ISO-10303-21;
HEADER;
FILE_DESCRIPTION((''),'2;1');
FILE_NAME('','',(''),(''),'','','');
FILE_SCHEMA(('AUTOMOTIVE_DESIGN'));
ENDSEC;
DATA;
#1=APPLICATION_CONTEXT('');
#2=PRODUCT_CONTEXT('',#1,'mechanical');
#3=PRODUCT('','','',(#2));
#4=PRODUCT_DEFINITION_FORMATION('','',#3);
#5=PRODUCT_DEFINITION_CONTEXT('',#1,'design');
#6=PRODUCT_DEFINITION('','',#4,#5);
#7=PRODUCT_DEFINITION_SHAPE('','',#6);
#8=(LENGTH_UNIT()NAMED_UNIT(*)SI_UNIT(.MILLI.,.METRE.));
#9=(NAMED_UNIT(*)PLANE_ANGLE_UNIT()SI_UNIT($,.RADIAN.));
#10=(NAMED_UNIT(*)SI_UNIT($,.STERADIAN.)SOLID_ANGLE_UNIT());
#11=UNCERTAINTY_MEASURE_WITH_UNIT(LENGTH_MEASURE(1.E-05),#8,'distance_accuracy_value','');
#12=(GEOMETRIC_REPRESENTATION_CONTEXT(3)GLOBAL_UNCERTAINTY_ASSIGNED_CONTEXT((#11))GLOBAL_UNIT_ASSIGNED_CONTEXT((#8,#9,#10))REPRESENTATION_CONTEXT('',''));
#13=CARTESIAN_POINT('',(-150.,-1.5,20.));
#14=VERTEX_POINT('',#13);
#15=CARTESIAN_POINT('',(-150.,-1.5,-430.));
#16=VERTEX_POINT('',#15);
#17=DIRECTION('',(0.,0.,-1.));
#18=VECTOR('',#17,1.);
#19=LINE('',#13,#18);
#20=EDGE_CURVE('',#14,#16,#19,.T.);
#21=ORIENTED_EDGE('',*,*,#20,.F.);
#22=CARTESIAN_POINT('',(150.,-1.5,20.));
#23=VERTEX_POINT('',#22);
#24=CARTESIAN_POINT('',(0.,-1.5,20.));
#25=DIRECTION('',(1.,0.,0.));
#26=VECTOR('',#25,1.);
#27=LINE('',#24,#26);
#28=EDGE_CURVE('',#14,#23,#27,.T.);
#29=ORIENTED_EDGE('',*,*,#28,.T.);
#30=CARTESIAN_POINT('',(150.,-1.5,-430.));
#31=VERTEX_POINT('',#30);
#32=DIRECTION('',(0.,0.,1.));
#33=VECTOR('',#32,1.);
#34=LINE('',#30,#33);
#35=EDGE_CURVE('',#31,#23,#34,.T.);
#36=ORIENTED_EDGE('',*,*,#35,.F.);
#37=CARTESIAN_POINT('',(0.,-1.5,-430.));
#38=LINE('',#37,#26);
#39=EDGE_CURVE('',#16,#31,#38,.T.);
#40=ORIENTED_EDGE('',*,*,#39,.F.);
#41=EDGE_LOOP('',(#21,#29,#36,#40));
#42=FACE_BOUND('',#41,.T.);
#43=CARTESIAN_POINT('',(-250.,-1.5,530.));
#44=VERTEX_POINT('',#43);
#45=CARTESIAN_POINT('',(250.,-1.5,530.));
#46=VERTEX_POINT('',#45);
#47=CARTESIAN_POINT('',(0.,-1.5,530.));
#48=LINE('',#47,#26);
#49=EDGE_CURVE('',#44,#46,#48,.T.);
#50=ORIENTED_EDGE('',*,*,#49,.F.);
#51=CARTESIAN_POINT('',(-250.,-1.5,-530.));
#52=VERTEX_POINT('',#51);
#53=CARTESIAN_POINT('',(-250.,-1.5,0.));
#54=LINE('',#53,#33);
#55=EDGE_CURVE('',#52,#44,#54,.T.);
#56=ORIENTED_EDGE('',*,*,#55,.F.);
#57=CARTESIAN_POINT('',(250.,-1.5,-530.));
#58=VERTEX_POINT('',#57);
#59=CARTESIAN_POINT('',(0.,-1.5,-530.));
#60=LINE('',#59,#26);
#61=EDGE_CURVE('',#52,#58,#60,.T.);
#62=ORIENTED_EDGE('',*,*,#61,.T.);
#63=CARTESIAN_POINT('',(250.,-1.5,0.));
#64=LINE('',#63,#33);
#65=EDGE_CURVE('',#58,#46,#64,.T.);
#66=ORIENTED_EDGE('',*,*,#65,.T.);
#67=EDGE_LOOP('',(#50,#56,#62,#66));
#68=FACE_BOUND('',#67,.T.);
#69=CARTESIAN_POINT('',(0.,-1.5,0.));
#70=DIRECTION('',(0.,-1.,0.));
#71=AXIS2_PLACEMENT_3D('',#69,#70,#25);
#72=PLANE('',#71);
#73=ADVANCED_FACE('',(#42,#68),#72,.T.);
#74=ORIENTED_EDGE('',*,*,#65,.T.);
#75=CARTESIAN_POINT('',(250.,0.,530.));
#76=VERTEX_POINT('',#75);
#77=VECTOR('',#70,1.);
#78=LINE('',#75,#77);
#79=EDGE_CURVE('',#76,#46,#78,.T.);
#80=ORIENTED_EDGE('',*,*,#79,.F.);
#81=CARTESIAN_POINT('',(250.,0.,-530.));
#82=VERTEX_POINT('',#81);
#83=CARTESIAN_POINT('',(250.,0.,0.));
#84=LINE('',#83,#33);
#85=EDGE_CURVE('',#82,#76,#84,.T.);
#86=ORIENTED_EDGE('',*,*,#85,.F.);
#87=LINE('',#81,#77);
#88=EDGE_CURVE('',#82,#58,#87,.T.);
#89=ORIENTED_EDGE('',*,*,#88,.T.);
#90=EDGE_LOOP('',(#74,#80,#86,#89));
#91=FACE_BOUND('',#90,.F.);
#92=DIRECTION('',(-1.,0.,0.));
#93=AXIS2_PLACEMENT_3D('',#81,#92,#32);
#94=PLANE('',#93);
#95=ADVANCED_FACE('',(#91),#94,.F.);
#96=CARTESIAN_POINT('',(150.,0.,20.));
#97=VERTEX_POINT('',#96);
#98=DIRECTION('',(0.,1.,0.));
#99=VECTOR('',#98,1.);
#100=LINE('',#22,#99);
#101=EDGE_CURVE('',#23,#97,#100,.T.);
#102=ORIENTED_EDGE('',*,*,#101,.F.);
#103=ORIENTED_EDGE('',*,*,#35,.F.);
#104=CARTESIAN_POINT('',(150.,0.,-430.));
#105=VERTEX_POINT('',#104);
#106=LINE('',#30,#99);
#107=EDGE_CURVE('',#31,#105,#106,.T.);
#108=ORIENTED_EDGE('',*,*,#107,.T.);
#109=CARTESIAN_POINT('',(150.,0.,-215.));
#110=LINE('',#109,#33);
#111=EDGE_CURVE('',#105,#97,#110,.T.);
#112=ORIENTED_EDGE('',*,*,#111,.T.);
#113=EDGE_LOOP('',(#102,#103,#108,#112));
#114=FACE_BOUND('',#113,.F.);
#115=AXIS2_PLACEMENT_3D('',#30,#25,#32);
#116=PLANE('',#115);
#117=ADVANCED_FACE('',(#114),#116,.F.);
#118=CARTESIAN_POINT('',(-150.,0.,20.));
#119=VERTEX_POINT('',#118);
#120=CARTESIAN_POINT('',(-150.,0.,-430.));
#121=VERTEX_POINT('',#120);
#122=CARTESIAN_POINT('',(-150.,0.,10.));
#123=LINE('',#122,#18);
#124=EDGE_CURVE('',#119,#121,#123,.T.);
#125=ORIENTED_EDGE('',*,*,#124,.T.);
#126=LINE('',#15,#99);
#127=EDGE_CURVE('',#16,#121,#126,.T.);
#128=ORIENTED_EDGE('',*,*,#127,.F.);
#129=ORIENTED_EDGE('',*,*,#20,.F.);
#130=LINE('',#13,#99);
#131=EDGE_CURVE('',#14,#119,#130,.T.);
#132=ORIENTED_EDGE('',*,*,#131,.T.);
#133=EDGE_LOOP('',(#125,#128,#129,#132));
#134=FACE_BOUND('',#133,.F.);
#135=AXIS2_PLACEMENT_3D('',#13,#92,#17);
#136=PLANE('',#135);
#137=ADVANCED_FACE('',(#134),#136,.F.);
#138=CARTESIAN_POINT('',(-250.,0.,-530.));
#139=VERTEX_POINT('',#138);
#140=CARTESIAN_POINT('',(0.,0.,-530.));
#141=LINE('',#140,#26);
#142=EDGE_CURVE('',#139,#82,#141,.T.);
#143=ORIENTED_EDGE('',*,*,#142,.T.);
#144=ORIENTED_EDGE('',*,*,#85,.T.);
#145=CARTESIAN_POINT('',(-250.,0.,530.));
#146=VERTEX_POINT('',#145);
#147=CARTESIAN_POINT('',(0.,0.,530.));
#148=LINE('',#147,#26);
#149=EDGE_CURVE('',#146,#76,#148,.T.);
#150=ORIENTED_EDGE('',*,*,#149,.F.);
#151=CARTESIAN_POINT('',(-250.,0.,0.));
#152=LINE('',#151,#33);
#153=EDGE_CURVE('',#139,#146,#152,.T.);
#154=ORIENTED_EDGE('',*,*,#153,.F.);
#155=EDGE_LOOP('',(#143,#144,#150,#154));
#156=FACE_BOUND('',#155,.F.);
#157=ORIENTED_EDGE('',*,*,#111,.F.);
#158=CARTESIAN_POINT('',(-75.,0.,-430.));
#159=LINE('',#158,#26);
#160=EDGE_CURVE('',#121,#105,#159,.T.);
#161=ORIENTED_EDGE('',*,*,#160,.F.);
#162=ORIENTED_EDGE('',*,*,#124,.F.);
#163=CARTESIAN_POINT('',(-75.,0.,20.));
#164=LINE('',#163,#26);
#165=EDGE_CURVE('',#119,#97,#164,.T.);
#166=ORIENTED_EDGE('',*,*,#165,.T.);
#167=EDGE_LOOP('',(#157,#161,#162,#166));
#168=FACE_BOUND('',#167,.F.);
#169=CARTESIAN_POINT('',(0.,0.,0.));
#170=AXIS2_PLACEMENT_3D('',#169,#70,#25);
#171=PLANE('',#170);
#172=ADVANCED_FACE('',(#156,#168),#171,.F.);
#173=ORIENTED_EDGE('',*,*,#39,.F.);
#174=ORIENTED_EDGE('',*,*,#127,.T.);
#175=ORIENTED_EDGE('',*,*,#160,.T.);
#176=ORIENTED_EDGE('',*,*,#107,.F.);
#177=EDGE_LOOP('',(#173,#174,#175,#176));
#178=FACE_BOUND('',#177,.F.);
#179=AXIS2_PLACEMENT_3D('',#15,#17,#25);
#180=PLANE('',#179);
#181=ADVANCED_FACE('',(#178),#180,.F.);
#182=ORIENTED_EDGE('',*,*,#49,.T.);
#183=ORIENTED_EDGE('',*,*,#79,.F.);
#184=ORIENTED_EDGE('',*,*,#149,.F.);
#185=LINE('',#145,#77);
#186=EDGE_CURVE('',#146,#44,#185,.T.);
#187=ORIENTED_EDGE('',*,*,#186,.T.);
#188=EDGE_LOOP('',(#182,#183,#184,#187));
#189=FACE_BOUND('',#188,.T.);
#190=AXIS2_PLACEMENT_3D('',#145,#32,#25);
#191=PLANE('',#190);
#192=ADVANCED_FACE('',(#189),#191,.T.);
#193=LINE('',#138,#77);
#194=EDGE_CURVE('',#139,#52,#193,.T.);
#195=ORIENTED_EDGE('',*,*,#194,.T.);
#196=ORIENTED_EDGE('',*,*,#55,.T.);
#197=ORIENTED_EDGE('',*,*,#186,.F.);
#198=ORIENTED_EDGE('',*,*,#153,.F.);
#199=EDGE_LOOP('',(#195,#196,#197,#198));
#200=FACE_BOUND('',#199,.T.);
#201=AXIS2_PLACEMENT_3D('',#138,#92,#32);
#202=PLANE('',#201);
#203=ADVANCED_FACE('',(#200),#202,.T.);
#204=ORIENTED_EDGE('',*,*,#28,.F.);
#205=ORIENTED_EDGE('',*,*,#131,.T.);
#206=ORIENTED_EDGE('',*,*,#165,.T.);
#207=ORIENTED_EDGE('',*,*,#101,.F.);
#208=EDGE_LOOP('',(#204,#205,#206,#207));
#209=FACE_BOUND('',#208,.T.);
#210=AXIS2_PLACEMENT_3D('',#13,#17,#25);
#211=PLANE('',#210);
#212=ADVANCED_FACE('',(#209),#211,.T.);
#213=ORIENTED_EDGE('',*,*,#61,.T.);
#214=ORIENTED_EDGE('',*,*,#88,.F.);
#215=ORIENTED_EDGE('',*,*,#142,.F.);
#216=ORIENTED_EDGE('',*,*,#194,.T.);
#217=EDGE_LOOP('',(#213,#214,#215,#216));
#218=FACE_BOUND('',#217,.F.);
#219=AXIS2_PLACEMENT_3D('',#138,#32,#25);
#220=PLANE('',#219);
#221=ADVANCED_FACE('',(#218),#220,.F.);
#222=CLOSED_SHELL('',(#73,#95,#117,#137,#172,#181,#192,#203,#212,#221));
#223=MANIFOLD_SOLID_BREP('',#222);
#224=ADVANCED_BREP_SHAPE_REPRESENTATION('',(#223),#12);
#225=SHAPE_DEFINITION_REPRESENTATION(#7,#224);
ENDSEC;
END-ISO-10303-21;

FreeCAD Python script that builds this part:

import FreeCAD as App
import Part
import Sketcher
from FreeCAD import Vector
Q = App.Units.Quantity


def add_polygon(sketch, points):
    """Adds a closed chain of lines whose ends are joined by coincident constraints."""
    first, n = sketch.GeometryCount, len(points)
    for a, b in zip(points, points[1:] + points[:1]):
        sketch.addGeometry(Part.LineSegment(App.Vector(*a, 0), App.Vector(*b, 0)), False)
    for i in range(n):
        sketch.addConstraint(Sketcher.Constraint("Coincident", first + i, 2, first + (i + 1) % n, 1))

doc = App.newDocument("Part")
body = doc.addObject("PartDesign::Body", "Body")

sketch1 = body.newObject("Sketcher::SketchObject", "Sketch")
sketch1.AttachmentSupport = (doc.getObject("XZ_Plane"), [""])
sketch1.MapMode = "FlatFace"
add_polygon(sketch1, [(-250, 530), (-250, -530), (250, -530), (250, 530)])
sketch1.addConstraint(Sketcher.Constraint("Vertical", 0))
sketch1.addConstraint(Sketcher.Constraint("Horizontal", 1))
sketch1.addConstraint(Sketcher.Constraint("Vertical", 2))
sketch1.addConstraint(Sketcher.Constraint("Horizontal", 3))
sketch1.addConstraint(Sketcher.Constraint("Symmetric", 0, 2, 2, 2, -1, 1))
sketch1.addConstraint(Sketcher.Constraint("DistanceX", 1, 1, 1, 2, Q("500 mm")))
sketch1.addConstraint(Sketcher.Constraint("DistanceY", 0, 2, 0, 1, Q("1060 mm")))
pad1 = body.newObject("PartDesign::Pad", "Pad")
pad1.Profile = sketch1
pad1.Length = 1.5

sketch2 = body.newObject("Sketcher::SketchObject", "Sketch001")
sketch2.AttachmentSupport = (doc.getObject("XZ_Plane"), [""])
sketch2.MapMode = "FlatFace"
sketch2.AttachmentOffset = App.Placement(Vector(0, 0, 1.5), App.Rotation())
add_polygon(sketch2, [(-150, 20), (-150, -430), (150, -430), (150, 20)])
sketch2.addConstraint(Sketcher.Constraint("Vertical", 0))
sketch2.addConstraint(Sketcher.Constraint("Horizontal", 1))
sketch2.addConstraint(Sketcher.Constraint("Vertical", 2))
sketch2.addConstraint(Sketcher.Constraint("Horizontal", 3))
sketch2.addConstraint(Sketcher.Constraint("DistanceX", 1, 1, 1, 2, Q("300 mm")))
sketch2.addConstraint(Sketcher.Constraint("DistanceY", 0, 2, 0, 1, Q("450 mm")))
sketch2.addConstraint(Sketcher.Constraint("DistanceX", 0, 2, -1, 1, Q("150 mm")))
sketch2.addConstraint(Sketcher.Constraint("DistanceY", 0, 2, -1, 1, Q("430 mm")))
pocket1 = body.newObject("PartDesign::Pocket", "Pocket")
pocket1.Profile = sketch2
pocket1.Length = 25

doc.recompute()
